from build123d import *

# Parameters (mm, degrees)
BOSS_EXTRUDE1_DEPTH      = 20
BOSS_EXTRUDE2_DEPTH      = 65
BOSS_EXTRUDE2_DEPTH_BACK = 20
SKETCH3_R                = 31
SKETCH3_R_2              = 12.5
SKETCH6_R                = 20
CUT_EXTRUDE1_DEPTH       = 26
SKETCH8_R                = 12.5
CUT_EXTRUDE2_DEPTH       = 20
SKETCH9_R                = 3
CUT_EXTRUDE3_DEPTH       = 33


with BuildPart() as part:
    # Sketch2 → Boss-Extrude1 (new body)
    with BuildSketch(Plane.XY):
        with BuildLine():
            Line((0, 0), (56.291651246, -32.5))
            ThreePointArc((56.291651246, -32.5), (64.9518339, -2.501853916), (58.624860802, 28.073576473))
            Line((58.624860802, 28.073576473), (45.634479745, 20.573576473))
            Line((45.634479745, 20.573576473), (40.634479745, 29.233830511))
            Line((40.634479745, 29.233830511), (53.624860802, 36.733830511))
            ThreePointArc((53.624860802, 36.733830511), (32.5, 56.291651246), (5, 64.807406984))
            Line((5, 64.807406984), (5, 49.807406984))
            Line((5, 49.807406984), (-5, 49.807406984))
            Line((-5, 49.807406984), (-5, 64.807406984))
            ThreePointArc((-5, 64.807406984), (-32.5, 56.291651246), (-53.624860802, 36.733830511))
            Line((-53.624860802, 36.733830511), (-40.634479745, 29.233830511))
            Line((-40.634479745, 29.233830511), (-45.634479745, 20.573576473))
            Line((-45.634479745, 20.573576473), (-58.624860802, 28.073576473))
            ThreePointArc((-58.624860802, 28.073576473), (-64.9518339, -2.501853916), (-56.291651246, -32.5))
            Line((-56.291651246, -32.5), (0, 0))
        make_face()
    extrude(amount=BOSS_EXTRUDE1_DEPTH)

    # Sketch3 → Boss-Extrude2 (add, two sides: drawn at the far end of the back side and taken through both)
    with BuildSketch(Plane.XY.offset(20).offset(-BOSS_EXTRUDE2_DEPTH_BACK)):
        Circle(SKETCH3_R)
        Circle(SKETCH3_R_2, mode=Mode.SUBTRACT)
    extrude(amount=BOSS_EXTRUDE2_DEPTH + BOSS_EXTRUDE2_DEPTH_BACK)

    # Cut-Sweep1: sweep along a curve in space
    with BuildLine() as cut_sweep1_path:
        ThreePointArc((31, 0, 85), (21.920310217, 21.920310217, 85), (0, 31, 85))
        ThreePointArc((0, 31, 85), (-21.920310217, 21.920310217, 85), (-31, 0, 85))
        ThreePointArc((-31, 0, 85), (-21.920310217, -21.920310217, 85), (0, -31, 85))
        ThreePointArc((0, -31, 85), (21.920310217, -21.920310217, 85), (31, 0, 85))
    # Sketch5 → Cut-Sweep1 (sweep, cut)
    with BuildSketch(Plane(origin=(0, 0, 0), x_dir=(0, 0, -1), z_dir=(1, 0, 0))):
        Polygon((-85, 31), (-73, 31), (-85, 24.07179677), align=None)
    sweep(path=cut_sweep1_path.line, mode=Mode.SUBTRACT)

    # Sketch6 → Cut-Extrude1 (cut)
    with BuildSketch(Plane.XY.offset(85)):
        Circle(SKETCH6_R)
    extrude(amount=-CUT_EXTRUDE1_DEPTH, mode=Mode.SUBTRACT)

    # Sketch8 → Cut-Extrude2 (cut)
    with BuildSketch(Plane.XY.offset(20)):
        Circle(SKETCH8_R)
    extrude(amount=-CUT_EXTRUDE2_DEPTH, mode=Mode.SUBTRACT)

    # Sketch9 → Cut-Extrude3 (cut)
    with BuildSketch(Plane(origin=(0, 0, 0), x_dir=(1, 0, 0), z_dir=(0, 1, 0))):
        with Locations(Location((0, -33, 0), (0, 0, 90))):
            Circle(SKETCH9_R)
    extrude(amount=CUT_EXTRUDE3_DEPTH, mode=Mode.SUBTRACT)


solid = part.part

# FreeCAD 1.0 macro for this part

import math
import FreeCAD as App
import Part
import Sketcher
from FreeCAD import Vector
Q = App.Units.Quantity

doc = App.newDocument("Part")
params = doc.addObject("Spreadsheet::Sheet", "Params")
for row, (alias, value) in enumerate([
    ("sketch1_radius", "65 mm"),
    ("sketch1_width", "10 mm"),
    ("sketch1_height", "15 mm"),
    ("sketch1_length", "15 mm"),
    ("sketch1_length2", "10 mm"),
    ("pad1_length", "20 mm"),
    ("sketch2_diameter", "62 mm"),
    ("sketch2_diameter2", "25 mm"),
    ("pad2_length", "65 mm"),
    ("pad2_length2", "20 mm"),
    ("sketch3_height", "12 mm"),
    ("sketch4_radius", "31 mm"),
    ("sketch5_diameter", "40 mm"),
    ("pocket1_length", "26 mm"),
    ("sketch6_diameter", "25 mm"),
    ("pocket2_length", "20 mm"),
    ("sketch7_diameter", "6 mm"),
    ("pocket3_length", "33 mm"),
], start=1):
    params.set(f"A{row}", alias)
    params.set(f"B{row}", "=" + value)
    params.setAlias(f"B{row}", alias)

body = doc.addObject("PartDesign::Body", "Body")

sketch1 = doc.addObject("Sketcher::SketchObject", "Sketch")
body.addObject(sketch1)
sketch1.AttachmentSupport = (doc.XY_Plane, [""])
sketch1.MapMode = "FlatFace"
sketch1.addGeometry(Part.LineSegment(Vector(0, 0, 0), Vector(56, -32, 0)), False)
sketch1.addGeometry(Part.ArcOfCircle(Part.Circle(Vector(0, 0, 0), Vector(0, 0, 1), 65), math.radians(-30), math.radians(26)), False)
sketch1.addGeometry(Part.LineSegment(Vector(59, 28, 0), Vector(46, 21, 0)), False)
sketch1.addGeometry(Part.LineSegment(Vector(46, 21, 0), Vector(41, 29, 0)), False)
sketch1.addGeometry(Part.LineSegment(Vector(41, 29, 0), Vector(54, 37, 0)), False)
sketch1.addGeometry(Part.ArcOfCircle(Part.Circle(Vector(0, 0, 0), Vector(0, 0, 1), 65), math.radians(34), math.radians(86)), False)
sketch1.addGeometry(Part.LineSegment(Vector(5, 65, 0), Vector(5, 50, 0)), False)
sketch1.addGeometry(Part.LineSegment(Vector(5, 50, 0), Vector(-5, 50, 0)), False)
sketch1.addGeometry(Part.LineSegment(Vector(-5, 50, 0), Vector(-5, 65, 0)), False)
sketch1.addGeometry(Part.ArcOfCircle(Part.Circle(Vector(0, 0, 0), Vector(0, 0, 1), 65), math.radians(94), math.radians(146)), False)
sketch1.addGeometry(Part.LineSegment(Vector(-54, 37, 0), Vector(-41, 29, 0)), False)
sketch1.addGeometry(Part.LineSegment(Vector(-41, 29, 0), Vector(-46, 21, 0)), False)
sketch1.addGeometry(Part.LineSegment(Vector(-46, 21, 0), Vector(-59, 28, 0)), False)
sketch1.addGeometry(Part.ArcOfCircle(Part.Circle(Vector(0, 0, 0), Vector(0, 0, 1), 65), math.radians(154), math.radians(210)), False)
sketch1.addGeometry(Part.LineSegment(Vector(-56, -32, 0), Vector(0, 0, 0)), False)
sketch1.addConstraint(Sketcher.Constraint("Coincident", 0, 2, 1, 1))
sketch1.addConstraint(Sketcher.Constraint("Coincident", 1, 2, 2, 1))
sketch1.addConstraint(Sketcher.Constraint("Coincident", 2, 2, 3, 1))
sketch1.addConstraint(Sketcher.Constraint("Coincident", 3, 2, 4, 1))
sketch1.addConstraint(Sketcher.Constraint("Coincident", 4, 2, 5, 1))
sketch1.addConstraint(Sketcher.Constraint("Coincident", 5, 2, 6, 1))
sketch1.addConstraint(Sketcher.Constraint("Coincident", 6, 2, 7, 1))
sketch1.addConstraint(Sketcher.Constraint("Coincident", 7, 2, 8, 1))
sketch1.addConstraint(Sketcher.Constraint("Coincident", 8, 2, 9, 1))
sketch1.addConstraint(Sketcher.Constraint("Coincident", 9, 2, 10, 1))
sketch1.addConstraint(Sketcher.Constraint("Coincident", 10, 2, 11, 1))
sketch1.addConstraint(Sketcher.Constraint("Coincident", 11, 2, 12, 1))
sketch1.addConstraint(Sketcher.Constraint("Coincident", 12, 2, 13, 1))
sketch1.addConstraint(Sketcher.Constraint("Coincident", 13, 2, 14, 1))
sketch1.addConstraint(Sketcher.Constraint("Coincident", 14, 2, 0, 1))
sketch1.addConstraint(Sketcher.Constraint("Vertical", 6))
sketch1.addConstraint(Sketcher.Constraint("Horizontal", 7))
sketch1.addConstraint(Sketcher.Constraint("Vertical", 8))
sketch1.addConstraint(Sketcher.Constraint("Coincident", 1, 3, -1, 1))
sketch1.addConstraint(Sketcher.Constraint("Coincident", 5, 3, -1, 1))
sketch1.addConstraint(Sketcher.Constraint("Coincident", 9, 3, -1, 1))
sketch1.addConstraint(Sketcher.Constraint("Coincident", 13, 3, -1, 1))
sketch1.addConstraint(Sketcher.Constraint("Coincident", 14, 2, -1, 1))
sketch1.addConstraint(Sketcher.Constraint("Equal", 1, 5))
sketch1.addConstraint(Sketcher.Constraint("Equal", 5, 9))
sketch1.addConstraint(Sketcher.Constraint("Equal", 9, 13))
sketch1.addConstraint(Sketcher.Constraint("Symmetric", 3, 2, 10, 2, -2))
sketch1.addConstraint(Sketcher.Constraint("Symmetric", 2, 2, 11, 2, -2))
sketch1.addConstraint(Sketcher.Constraint("Perpendicular", 2, 3))
sketch1.addConstraint(Sketcher.Constraint("Perpendicular", 3, 4))
sketch1.addConstraint(Sketcher.Constraint("Parallel", 0, 10))
sketch1.addConstraint(Sketcher.Constraint("Perpendicular", 10, 11))
sketch1.addConstraint(Sketcher.Constraint("Perpendicular", 11, 12))
sketch1.addConstraint(Sketcher.Constraint("Parallel", 4, 14))
sketch1.addConstraint(Sketcher.Constraint("Horizontal", 5, 2, 8, 2))
sketch1.addConstraint(Sketcher.Constraint("Equal", 2, 4))
sketch1.addConstraint(Sketcher.Constraint("Radius", 1, 65.0))
sketch1.addConstraint(Sketcher.Constraint("DistanceX", 7, 2, 7, 1, 10.0))
sketch1.addConstraint(Sketcher.Constraint("DistanceY", 6, 2, 6, 1, 15.0))
sketch1.addConstraint(Sketcher.Constraint("Angle", 0, Q("-30 deg")))
sketch1.addConstraint(Sketcher.Constraint("Distance", 2, 15.0))
sketch1.addConstraint(Sketcher.Constraint("Distance", 3, 10.0))
sketch1.setExpression("Constraints[36]", "Params.sketch1_radius")
sketch1.setExpression("Constraints[37]", "Params.sketch1_width")
sketch1.setExpression("Constraints[38]", "Params.sketch1_height")
sketch1.setExpression("Constraints[40]", "Params.sketch1_length")
sketch1.setExpression("Constraints[41]", "Params.sketch1_length2")
pad1 = doc.addObject("PartDesign::Pad", "Pad")
body.addObject(pad1)
pad1.Profile = sketch1
pad1.setExpression("Length", "Params.pad1_length")

sketch2 = doc.addObject("Sketcher::SketchObject", "Sketch001")
body.addObject(sketch2)
sketch2.AttachmentSupport = (doc.XY_Plane, [""])
sketch2.MapMode = "FlatFace"
sketch2.AttachmentOffset = App.Placement(Vector(0, 0, 20), App.Rotation())
sketch2.addGeometry(Part.Circle(Vector(0, 0, 0), Vector(0, 0, 1), 31), False)
sketch2.addGeometry(Part.Circle(Vector(0, 0, 0), Vector(0, 0, 1), 12), False)
sketch2.addConstraint(Sketcher.Constraint("Coincident", 0, 3, -1, 1))
sketch2.addConstraint(Sketcher.Constraint("Coincident", 1, 3, -1, 1))
sketch2.addConstraint(Sketcher.Constraint("Diameter", 0, 62.0))
sketch2.addConstraint(Sketcher.Constraint("Diameter", 1, 25.0))
sketch2.setExpression("Constraints[2]", "Params.sketch2_diameter")
sketch2.setExpression("Constraints[3]", "Params.sketch2_diameter2")
pad2 = doc.addObject("PartDesign::Pad", "Pad001")
body.addObject(pad2)
pad2.Profile = sketch2
pad2.Type = "TwoLengths"
pad2.setExpression("Length", "Params.pad2_length")
pad2.setExpression("Length2", "Params.pad2_length2")

sketch3 = doc.addObject("Sketcher::SketchObject", "Sketch002")
body.addObject(sketch3)
sketch3.AttachmentSupport = (doc.YZ_Plane, [""])
sketch3.MapMode = "FlatFace"
sketch3.addGeometry(Part.LineSegment(Vector(31, 73, 0), Vector(31, 85, 0)), False)
sketch3.addGeometry(Part.LineSegment(Vector(31, 85, 0), Vector(24, 85, 0)), False)
sketch3.addGeometry(Part.LineSegment(Vector(24, 85, 0), Vector(31, 73, 0)), False)
sketch3.addConstraint(Sketcher.Constraint("Coincident", 0, 2, 1, 1))
sketch3.addConstraint(Sketcher.Constraint("Coincident", 1, 2, 2, 1))
sketch3.addConstraint(Sketcher.Constraint("Coincident", 2, 2, 0, 1))
sketch3.addConstraint(Sketcher.Constraint("Vertical", 0))
sketch3.addConstraint(Sketcher.Constraint("Horizontal", 1))
sketch3.addConstraint(Sketcher.Constraint("DistanceY", 0, 1, 0, 2, 12.0))
sketch3.addConstraint(Sketcher.Constraint("Angle", 2, Q("-60 deg")))
sketch3.addConstraint(Sketcher.Constraint("DistanceX", -1, 1, 0, 2, 31.0))
sketch3.addConstraint(Sketcher.Constraint("DistanceY", -1, 1, 0, 2, 85.0))
sketch3.setExpression("Constraints[5]", "Params.sketch3_height")

sketch4 = doc.addObject("Sketcher::SketchObject", "Sketch003")
body.addObject(sketch4)
sketch4.AttachmentSupport = (doc.XY_Plane, [""])
sketch4.MapMode = "FlatFace"
sketch4.AttachmentOffset = App.Placement(Vector(0, 0, 85), App.Rotation())
sketch4.addGeometry(Part.ArcOfCircle(Part.Circle(Vector(0, 0, 0), Vector(0, 0, 1), 31), math.radians(0), math.radians(90)), False)
sketch4.addGeometry(Part.ArcOfCircle(Part.Circle(Vector(0, 0, 0), Vector(0, 0, 1), 31), math.radians(90), math.radians(180)), False)
sketch4.addGeometry(Part.ArcOfCircle(Part.Circle(Vector(0, 0, 0), Vector(0, 0, 1), 31), math.radians(180), math.radians(270)), False)
sketch4.addGeometry(Part.ArcOfCircle(Part.Circle(Vector(0, 0, 0), Vector(0, 0, 1), 31), math.radians(-90), math.radians(0)), False)
sketch4.addConstraint(Sketcher.Constraint("Tangent", 0, 2, 1, 1))
sketch4.addConstraint(Sketcher.Constraint("Tangent", 1, 2, 2, 1))
sketch4.addConstraint(Sketcher.Constraint("Tangent", 2, 2, 3, 1))
sketch4.addConstraint(Sketcher.Constraint("Tangent", 3, 2, 0, 1))
sketch4.addConstraint(Sketcher.Constraint("Coincident", 0, 3, -1, 1))
sketch4.addConstraint(Sketcher.Constraint("Equal", 0, 1))
sketch4.addConstraint(Sketcher.Constraint("PointOnObject", 0, 2, -2))
sketch4.addConstraint(Sketcher.Constraint("PointOnObject", 1, 2, -1))
sketch4.addConstraint(Sketcher.Constraint("PointOnObject", 2, 2, -2))
sketch4.addConstraint(Sketcher.Constraint("PointOnObject", 3, 2, -1))
sketch4.addConstraint(Sketcher.Constraint("Radius", 0, 31.0))
sketch4.setExpression("Constraints[10]", "Params.sketch4_radius")
doc.recompute()

subtractivepipe = doc.addObject("PartDesign::SubtractivePipe", "SubtractivePipe")
body.addObject(subtractivepipe)
subtractivepipe.Profile = sketch3
subtractivepipe.Spine = (sketch4, ["Edge1", "Edge2", "Edge3", "Edge4"])

sketch5 = doc.addObject("Sketcher::SketchObject", "Sketch004")
body.addObject(sketch5)
sketch5.AttachmentSupport = (doc.XY_Plane, [""])
sketch5.MapMode = "FlatFace"
sketch5.AttachmentOffset = App.Placement(Vector(0, 0, 85), App.Rotation())
sketch5.addGeometry(Part.Circle(Vector(0, 0, 0), Vector(0, 0, 1), 20), False)
sketch5.addConstraint(Sketcher.Constraint("Coincident", 0, 3, -1, 1))
sketch5.addConstraint(Sketcher.Constraint("Diameter", 0, 40.0))
sketch5.setExpression("Constraints[1]", "Params.sketch5_diameter")
pocket1 = doc.addObject("PartDesign::Pocket", "Pocket")
body.addObject(pocket1)
pocket1.Profile = sketch5
pocket1.setExpression("Length", "Params.pocket1_length")

sketch6 = doc.addObject("Sketcher::SketchObject", "Sketch005")
body.addObject(sketch6)
sketch6.AttachmentSupport = (doc.XY_Plane, [""])
sketch6.MapMode = "FlatFace"
sketch6.AttachmentOffset = App.Placement(Vector(0, 0, 20), App.Rotation())
sketch6.addGeometry(Part.Circle(Vector(0, 0, 0), Vector(0, 0, 1), 12), False)
sketch6.addConstraint(Sketcher.Constraint("Coincident", 0, 3, -1, 1))
sketch6.addConstraint(Sketcher.Constraint("Diameter", 0, 25.0))
sketch6.setExpression("Constraints[1]", "Params.sketch6_diameter")
pocket2 = doc.addObject("PartDesign::Pocket", "Pocket001")
body.addObject(pocket2)
pocket2.Profile = sketch6
pocket2.setExpression("Length", "Params.pocket2_length")

sketch7 = doc.addObject("Sketcher::SketchObject", "Sketch006")
body.addObject(sketch7)
sketch7.AttachmentSupport = (doc.XZ_Plane, [""])
sketch7.MapMode = "FlatFace"
sketch7.addGeometry(Part.Circle(Vector(0, 33, 0), Vector(0, 0, 1), 3), False)
sketch7.addConstraint(Sketcher.Constraint("PointOnObject", 0, 3, -2))
sketch7.addConstraint(Sketcher.Constraint("Diameter", 0, 6.0))
sketch7.addConstraint(Sketcher.Constraint("DistanceY", -1, 1, 0, 3, 33.0))
sketch7.setExpression("Constraints[1]", "Params.sketch7_diameter")
pocket3 = doc.addObject("PartDesign::Pocket", "Pocket002")
body.addObject(pocket3)
pocket3.Profile = sketch7
pocket3.setExpression("Length", "Params.pocket3_length")

doc.recompute()
